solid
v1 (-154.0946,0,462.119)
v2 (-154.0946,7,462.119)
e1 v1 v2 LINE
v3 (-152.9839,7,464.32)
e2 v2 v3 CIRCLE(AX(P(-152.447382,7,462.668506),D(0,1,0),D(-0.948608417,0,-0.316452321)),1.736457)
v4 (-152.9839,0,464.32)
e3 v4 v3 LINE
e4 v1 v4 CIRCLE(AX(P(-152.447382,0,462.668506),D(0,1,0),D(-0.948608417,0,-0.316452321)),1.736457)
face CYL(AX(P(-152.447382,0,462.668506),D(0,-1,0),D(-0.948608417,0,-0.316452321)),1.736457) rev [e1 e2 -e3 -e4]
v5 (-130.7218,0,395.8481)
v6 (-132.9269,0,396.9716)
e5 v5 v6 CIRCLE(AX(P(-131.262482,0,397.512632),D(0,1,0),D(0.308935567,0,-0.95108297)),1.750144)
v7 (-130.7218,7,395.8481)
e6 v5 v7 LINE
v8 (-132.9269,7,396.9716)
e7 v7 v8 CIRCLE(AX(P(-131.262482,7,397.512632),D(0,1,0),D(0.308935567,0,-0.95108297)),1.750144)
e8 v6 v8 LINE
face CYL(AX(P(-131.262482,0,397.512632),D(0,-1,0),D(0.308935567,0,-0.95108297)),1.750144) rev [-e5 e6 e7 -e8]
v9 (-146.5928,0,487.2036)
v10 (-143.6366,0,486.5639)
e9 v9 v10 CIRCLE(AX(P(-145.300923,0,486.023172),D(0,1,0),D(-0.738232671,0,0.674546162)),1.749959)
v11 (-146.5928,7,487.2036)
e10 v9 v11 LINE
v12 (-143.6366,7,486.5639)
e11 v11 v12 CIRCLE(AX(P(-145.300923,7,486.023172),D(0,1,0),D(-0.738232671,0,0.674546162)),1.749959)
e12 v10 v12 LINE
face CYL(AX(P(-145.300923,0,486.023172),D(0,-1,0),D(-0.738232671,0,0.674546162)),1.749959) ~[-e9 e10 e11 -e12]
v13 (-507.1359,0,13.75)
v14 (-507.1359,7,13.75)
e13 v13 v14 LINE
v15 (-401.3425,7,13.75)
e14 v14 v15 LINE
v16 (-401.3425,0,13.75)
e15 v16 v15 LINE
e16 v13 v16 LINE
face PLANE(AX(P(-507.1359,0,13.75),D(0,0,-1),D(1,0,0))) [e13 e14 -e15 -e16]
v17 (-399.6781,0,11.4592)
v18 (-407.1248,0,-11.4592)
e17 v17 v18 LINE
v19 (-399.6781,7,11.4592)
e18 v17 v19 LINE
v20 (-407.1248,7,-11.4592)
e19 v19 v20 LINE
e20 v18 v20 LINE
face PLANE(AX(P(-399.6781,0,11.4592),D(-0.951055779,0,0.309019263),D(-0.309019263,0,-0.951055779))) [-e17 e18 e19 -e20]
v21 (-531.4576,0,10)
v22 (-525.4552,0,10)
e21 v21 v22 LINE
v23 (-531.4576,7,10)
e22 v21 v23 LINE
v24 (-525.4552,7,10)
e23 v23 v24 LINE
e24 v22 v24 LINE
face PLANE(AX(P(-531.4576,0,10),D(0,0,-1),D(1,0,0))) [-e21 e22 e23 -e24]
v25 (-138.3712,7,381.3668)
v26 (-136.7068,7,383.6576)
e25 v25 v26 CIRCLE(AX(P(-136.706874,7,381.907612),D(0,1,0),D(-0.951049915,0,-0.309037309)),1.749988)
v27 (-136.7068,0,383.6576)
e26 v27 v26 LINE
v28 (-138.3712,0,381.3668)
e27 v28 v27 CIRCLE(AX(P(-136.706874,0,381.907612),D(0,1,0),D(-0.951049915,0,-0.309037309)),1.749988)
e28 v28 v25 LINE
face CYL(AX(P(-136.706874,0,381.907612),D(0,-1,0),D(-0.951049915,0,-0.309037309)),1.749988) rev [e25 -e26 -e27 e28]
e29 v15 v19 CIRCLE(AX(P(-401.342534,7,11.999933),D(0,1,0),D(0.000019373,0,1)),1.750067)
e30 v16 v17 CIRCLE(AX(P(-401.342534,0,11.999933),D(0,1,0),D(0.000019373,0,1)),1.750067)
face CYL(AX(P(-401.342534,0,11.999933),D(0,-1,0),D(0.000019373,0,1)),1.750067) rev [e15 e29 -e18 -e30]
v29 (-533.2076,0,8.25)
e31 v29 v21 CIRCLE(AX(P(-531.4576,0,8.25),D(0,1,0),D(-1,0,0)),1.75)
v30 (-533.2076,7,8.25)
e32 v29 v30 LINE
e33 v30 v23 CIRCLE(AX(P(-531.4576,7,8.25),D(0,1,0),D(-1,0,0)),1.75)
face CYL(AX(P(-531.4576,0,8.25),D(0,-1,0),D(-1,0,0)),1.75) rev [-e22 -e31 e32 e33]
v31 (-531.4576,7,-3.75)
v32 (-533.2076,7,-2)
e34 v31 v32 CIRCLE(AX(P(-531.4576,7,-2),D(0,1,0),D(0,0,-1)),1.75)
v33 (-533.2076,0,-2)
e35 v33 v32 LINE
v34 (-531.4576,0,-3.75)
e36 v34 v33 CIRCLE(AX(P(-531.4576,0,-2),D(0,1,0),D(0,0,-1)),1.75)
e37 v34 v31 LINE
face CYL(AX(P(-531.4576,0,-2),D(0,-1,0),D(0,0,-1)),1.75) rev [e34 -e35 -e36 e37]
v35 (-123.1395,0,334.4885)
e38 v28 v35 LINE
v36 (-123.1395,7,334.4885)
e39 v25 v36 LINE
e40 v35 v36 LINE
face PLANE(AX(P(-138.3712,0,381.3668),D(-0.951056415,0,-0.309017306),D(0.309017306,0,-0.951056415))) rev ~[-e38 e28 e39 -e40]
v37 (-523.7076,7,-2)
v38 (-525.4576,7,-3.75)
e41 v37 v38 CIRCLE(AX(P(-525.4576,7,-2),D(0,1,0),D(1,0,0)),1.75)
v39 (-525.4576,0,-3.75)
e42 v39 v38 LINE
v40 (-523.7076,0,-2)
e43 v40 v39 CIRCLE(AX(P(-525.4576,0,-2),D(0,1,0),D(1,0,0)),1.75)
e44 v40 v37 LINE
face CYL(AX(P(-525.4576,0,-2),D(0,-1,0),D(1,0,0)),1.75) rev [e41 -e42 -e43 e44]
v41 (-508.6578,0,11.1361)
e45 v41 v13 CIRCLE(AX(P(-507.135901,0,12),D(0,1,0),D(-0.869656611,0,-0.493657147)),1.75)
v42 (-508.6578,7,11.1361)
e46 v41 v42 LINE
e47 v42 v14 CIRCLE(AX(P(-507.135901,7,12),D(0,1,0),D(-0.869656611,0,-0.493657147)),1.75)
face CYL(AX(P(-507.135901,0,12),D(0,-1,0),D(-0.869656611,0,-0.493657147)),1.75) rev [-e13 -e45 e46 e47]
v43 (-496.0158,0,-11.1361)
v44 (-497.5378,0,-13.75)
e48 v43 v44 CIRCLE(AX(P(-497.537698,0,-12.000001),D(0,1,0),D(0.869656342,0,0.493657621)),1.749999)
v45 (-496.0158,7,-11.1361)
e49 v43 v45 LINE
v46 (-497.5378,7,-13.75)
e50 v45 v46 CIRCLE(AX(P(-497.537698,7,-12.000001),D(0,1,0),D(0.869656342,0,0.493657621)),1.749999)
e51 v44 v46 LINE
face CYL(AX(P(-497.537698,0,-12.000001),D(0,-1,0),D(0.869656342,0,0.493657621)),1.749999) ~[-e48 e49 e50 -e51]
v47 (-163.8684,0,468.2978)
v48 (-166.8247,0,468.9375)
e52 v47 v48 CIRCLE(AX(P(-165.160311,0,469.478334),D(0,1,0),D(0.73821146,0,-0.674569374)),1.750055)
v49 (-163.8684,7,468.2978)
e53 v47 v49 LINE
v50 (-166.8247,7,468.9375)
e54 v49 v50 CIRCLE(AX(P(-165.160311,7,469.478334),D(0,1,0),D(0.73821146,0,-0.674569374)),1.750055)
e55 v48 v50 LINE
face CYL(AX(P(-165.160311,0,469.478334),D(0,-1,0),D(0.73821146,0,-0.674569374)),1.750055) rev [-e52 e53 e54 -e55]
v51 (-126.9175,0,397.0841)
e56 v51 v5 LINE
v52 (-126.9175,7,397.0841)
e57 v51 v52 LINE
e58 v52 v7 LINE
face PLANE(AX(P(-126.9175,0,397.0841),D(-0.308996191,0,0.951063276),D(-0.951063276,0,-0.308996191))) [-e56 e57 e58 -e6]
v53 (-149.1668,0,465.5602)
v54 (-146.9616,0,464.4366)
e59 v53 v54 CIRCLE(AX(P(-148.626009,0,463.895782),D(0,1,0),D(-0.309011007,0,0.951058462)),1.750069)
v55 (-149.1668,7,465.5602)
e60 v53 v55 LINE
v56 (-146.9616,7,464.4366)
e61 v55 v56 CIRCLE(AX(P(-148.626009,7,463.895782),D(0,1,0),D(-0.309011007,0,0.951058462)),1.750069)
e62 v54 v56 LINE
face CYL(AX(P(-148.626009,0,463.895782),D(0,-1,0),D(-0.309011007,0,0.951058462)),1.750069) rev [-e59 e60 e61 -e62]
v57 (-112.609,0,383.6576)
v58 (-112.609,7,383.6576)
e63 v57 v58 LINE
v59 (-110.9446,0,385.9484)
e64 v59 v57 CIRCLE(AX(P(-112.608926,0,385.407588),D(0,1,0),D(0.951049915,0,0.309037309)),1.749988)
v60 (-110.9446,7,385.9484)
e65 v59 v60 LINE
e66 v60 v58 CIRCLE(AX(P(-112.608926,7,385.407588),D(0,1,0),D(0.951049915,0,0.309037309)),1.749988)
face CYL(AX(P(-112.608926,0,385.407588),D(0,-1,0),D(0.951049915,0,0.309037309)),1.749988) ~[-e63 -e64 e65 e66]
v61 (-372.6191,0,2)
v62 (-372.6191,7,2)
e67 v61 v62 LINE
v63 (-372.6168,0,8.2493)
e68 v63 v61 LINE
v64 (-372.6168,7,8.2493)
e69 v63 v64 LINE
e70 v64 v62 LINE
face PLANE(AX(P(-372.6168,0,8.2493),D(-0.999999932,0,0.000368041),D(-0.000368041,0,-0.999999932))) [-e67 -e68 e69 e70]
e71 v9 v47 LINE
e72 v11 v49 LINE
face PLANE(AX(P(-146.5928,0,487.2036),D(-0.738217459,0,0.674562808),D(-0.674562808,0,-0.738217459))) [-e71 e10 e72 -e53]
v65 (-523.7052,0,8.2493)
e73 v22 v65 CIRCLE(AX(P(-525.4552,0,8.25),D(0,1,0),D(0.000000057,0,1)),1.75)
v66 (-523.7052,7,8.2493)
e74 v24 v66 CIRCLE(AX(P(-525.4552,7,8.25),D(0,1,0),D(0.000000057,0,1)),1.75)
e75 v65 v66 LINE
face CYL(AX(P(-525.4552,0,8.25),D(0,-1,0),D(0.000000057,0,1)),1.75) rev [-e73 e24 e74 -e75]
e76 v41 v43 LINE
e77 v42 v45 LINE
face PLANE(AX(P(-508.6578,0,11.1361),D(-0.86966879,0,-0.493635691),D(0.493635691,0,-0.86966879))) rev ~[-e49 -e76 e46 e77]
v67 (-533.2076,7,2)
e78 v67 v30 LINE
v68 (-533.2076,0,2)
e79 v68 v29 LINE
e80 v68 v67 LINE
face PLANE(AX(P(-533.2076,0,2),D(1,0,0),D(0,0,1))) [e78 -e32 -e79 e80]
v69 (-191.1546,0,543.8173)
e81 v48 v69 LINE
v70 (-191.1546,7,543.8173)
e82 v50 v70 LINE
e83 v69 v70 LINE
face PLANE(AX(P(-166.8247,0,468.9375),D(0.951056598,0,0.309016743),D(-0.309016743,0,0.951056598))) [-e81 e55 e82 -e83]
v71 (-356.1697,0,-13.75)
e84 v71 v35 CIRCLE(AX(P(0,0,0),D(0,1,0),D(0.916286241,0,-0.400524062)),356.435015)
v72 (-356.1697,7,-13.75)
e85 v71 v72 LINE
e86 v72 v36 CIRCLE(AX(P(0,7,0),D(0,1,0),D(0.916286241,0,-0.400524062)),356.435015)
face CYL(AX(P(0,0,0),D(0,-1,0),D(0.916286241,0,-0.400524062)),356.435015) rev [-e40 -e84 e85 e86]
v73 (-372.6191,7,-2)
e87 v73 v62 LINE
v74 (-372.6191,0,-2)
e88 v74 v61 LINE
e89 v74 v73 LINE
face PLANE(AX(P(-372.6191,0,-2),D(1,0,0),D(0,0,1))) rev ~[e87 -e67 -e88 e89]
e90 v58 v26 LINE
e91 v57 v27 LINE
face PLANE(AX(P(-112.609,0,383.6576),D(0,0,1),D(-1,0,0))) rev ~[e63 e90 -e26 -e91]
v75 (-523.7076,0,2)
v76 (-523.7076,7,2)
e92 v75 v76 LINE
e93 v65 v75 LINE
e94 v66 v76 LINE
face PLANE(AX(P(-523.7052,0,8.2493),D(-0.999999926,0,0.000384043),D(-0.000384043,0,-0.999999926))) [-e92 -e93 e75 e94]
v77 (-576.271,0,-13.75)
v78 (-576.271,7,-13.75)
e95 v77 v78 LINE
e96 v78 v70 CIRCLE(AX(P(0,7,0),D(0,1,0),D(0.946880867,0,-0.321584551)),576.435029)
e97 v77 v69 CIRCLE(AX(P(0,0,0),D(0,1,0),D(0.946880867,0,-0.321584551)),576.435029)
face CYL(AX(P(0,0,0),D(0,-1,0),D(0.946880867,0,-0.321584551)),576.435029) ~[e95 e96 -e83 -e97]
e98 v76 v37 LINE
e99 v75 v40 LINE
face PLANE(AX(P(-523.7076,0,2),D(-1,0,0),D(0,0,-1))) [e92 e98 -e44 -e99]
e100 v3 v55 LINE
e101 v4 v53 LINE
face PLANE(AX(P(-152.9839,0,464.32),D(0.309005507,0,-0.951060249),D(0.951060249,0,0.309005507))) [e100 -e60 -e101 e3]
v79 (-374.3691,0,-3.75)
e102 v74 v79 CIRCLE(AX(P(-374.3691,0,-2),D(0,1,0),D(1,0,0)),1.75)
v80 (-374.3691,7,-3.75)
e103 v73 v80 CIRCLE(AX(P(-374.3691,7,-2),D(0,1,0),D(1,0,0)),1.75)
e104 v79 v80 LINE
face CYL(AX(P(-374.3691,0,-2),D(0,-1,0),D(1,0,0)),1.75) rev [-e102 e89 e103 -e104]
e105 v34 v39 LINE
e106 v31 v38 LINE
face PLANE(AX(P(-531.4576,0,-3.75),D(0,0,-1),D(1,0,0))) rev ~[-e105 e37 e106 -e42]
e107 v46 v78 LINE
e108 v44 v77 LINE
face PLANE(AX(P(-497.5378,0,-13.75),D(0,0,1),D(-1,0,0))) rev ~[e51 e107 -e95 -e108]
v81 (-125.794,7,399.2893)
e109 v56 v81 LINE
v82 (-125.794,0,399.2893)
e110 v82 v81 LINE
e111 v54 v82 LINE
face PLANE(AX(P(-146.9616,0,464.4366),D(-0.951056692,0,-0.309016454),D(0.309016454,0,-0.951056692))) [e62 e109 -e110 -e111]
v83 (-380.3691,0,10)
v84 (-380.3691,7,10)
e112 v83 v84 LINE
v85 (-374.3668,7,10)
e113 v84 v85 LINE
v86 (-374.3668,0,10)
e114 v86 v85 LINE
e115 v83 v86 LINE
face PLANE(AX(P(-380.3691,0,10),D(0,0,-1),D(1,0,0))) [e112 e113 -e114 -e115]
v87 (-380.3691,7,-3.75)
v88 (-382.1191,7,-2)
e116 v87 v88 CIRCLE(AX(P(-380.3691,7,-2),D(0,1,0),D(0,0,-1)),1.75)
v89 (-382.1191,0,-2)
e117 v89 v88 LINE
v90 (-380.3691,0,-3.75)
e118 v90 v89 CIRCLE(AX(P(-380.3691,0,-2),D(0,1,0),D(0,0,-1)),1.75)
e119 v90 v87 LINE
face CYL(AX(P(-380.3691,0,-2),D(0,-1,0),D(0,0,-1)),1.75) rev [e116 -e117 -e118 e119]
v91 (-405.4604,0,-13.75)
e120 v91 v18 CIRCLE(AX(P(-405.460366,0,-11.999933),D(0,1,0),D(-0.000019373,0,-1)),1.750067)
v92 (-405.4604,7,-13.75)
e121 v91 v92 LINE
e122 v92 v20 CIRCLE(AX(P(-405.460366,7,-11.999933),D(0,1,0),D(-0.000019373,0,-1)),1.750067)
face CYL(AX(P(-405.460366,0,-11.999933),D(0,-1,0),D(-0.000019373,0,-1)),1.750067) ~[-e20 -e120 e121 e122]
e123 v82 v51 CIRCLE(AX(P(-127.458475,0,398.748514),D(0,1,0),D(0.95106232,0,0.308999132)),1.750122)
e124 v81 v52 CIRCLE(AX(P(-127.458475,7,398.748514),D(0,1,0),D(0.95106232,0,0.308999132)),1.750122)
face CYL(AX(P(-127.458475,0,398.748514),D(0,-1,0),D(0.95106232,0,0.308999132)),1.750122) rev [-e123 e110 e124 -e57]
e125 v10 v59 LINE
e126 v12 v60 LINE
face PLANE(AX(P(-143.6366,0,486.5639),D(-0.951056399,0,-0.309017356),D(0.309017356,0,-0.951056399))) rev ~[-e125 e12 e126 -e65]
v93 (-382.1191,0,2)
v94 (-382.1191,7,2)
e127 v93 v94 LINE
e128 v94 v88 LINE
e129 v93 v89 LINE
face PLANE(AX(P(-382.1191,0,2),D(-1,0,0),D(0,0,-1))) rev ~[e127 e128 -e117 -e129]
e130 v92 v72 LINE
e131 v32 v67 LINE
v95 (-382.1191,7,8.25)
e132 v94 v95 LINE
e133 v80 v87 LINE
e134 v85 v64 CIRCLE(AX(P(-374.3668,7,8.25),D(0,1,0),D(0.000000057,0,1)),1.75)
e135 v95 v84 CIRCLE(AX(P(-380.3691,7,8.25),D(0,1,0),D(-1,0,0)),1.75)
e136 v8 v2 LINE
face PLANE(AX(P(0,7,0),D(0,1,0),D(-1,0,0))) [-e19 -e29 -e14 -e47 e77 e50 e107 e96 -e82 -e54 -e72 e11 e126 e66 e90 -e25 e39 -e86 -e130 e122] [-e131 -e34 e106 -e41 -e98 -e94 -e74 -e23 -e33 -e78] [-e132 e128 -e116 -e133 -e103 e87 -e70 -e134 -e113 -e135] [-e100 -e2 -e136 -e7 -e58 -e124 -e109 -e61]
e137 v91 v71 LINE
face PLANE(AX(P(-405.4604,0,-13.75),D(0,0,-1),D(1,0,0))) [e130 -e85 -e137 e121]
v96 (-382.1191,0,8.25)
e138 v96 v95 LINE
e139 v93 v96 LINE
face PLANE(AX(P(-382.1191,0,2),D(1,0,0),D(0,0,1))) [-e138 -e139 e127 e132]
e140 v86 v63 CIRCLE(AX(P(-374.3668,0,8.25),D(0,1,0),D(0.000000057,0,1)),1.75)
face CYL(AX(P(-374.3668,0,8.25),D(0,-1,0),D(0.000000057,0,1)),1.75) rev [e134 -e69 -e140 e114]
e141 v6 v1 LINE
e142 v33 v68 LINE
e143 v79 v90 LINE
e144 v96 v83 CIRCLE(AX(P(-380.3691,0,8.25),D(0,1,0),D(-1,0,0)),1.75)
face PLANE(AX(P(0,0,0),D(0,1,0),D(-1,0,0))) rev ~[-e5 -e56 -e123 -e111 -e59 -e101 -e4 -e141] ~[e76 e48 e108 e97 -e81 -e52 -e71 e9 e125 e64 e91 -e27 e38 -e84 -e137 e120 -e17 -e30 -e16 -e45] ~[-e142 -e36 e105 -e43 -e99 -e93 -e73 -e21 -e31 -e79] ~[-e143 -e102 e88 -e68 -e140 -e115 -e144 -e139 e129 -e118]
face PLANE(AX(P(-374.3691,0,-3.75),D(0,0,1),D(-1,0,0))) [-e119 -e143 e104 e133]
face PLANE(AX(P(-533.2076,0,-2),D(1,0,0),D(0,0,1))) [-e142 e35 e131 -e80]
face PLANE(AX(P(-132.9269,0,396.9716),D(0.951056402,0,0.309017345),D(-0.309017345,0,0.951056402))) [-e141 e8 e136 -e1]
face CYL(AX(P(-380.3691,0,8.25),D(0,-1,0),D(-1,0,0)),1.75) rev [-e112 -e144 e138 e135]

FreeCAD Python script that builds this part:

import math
import FreeCAD as App
import Part
import Sketcher

V = App.Vector
Q = App.Units.Quantity

doc = App.newDocument("Part")
body = doc.addObject("PartDesign::Body", "Body")

# Sketch on XZ plane
sketch1 = doc.addObject("Sketcher::SketchObject", "Sketch")
body.addObject(sketch1)
sketch1.AttachmentSupport = (doc.XZ_Plane, [""])
sketch1.MapMode = "FlatFace"
sketch1.addGeometry([
    Part.ArcOfCircle(Part.Circle(V(0, 0, 0), V(0, 0, 1), 576.435029), math.radians(109.366839), math.radians(181.366835)),  # 0
    Part.LineSegment(V(-191.1546, 543.8173, 0), V(-166.8247, 468.9375, 0)),  # 1
    Part.ArcOfCircle(Part.Circle(V(-165.1603, 469.4783, 0), V(0, 0, 1), 1.750025), math.radians(-161.999886), math.radians(-42.420144)),  # 2
    Part.LineSegment(V(-163.8684, 468.2978, 0), V(-146.5928, 487.2036, 0)),  # 3
    Part.ArcOfCircle(Part.Circle(V(-145.3009, 486.0231, 0), V(0, 0, 1), 1.750025), math.radians(18.001126), math.radians(137.579856)),  # 4
    Part.LineSegment(V(-143.6366, 486.5639, 0), V(-110.9446, 385.9484, 0)),  # 5
    Part.ArcOfCircle(Part.Circle(V(-112.609, 385.4076, 0), V(0, 0, 1), 1.750055), math.radians(-90), math.radians(18.000114)),  # 6
    Part.LineSegment(V(-112.609, 383.6576, 0), V(-136.7068, 383.6576, 0)),  # 7
    Part.ArcOfCircle(Part.Circle(V(-136.7068, 381.9076, 0), V(0, 0, 1), 1.750055), math.radians(90), math.radians(198.000114)),  # 8
    Part.LineSegment(V(-138.3712, 381.3668, 0), V(-123.1395, 334.4885, 0)),  # 9
    Part.ArcOfCircle(Part.Circle(V(0, 0, 0), V(0, 0, 1), 356.435015), math.radians(110.210816), math.radians(182.210817)),  # 10
    Part.LineSegment(V(-356.1697, -13.75, 0), V(-405.4604, -13.75, 0)),  # 11
    Part.ArcOfCircle(Part.Circle(V(-405.4604, -12, 0), V(0, 0, 1), 1.75), math.radians(161.999886), math.radians(270)),  # 12
    Part.LineSegment(V(-407.1248, -11.4592, 0), V(-399.6781, 11.4592, 0)),  # 13
    Part.ArcOfCircle(Part.Circle(V(-401.3425, 12, 0), V(0, 0, 1), 1.75), math.radians(-18.000114), math.radians(90)),  # 14
    Part.LineSegment(V(-401.3425, 13.75, 0), V(-507.1359, 13.75, 0)),  # 15
    Part.ArcOfCircle(Part.Circle(V(-507.1359, 12, 0), V(0, 0, 1), 1.750001), math.radians(90), math.radians(209.581225)),  # 16
    Part.LineSegment(V(-508.6578, 11.1361, 0), V(-496.0158, -11.1361, 0)),  # 17
    Part.ArcOfCircle(Part.Circle(V(-497.5378, -12, 0), V(0, 0, 1), 1.750088), math.radians(-90), math.radians(29.579609)),  # 18
    Part.LineSegment(V(-497.5378, -13.75, 0), V(-576.271, -13.75, 0)),  # 19
    Part.LineSegment(V(-372.6191, -2, 0), V(-372.6191, 2, 0)),  # 20
    Part.LineSegment(V(-372.6191, 2, 0), V(-372.6168, 8.2493, 0)),  # 21
    Part.ArcOfCircle(Part.Circle(V(-374.3668, 8.25, 0), V(0, 0, 1), 1.75), math.radians(-0.022918), math.radians(90)),  # 22
    Part.LineSegment(V(-374.3668, 10, 0), V(-380.3691, 10, 0)),  # 23
    Part.ArcOfCircle(Part.Circle(V(-380.3691, 8.25, 0), V(0, 0, 1), 1.75), math.radians(90), math.radians(180)),  # 24
    Part.LineSegment(V(-382.1191, 8.25, 0), V(-382.1191, -2, 0)),  # 25
    Part.ArcOfCircle(Part.Circle(V(-380.3691, -2, 0), V(0, 0, 1), 1.75), math.radians(180), math.radians(270)),  # 26
    Part.LineSegment(V(-380.3691, -3.75, 0), V(-374.3691, -3.75, 0)),  # 27
    Part.ArcOfCircle(Part.Circle(V(-374.3691, -2, 0), V(0, 0, 1), 1.75), math.radians(-90), math.radians(0)),  # 28
    Part.LineSegment(V(-523.7076, -2, 0), V(-523.7076, 2, 0)),  # 29
    Part.LineSegment(V(-523.7076, 2, 0), V(-523.7052, 8.2493, 0)),  # 30
    Part.ArcOfCircle(Part.Circle(V(-525.4552, 8.25, 0), V(0, 0, 1), 1.75), math.radians(-0.022918), math.radians(90)),  # 31
    Part.LineSegment(V(-525.4552, 10, 0), V(-531.4576, 10, 0)),  # 32
    Part.ArcOfCircle(Part.Circle(V(-531.4576, 8.25, 0), V(0, 0, 1), 1.75), math.radians(90), math.radians(180)),  # 33
    Part.LineSegment(V(-533.2076, 8.25, 0), V(-533.2076, -2, 0)),  # 34
    Part.ArcOfCircle(Part.Circle(V(-531.4576, -2, 0), V(0, 0, 1), 1.75), math.radians(180), math.radians(270)),  # 35
    Part.LineSegment(V(-531.4576, -3.75, 0), V(-525.4576, -3.75, 0)),  # 36
    Part.ArcOfCircle(Part.Circle(V(-525.4576, -2, 0), V(0, 0, 1), 1.75), math.radians(-90), math.radians(0)),  # 37
    Part.LineSegment(V(-149.1668, 465.5602, 0), V(-152.9839, 464.32, 0)),  # 38
    Part.ArcOfCircle(Part.Circle(V(-152.4473, 462.6685, 0), V(0, 0, 1), 1.736533), math.radians(107.999847), math.radians(198.447469)),  # 39
    Part.LineSegment(V(-154.0946, 462.119, 0), V(-132.9269, 396.9716, 0)),  # 40
    Part.ArcOfCircle(Part.Circle(V(-131.2625, 397.5124, 0), V(0, 0, 1), 1.749929), math.radians(-161.999886), math.radians(-72.001988)),  # 41
    Part.LineSegment(V(-130.7218, 395.8481, 0), V(-126.9175, 397.0841, 0)),  # 42
    Part.ArcOfCircle(Part.Circle(V(-127.4583, 398.7485, 0), V(0, 0, 1), 1.74996), math.radians(-71.999886), math.radians(18.001126)),  # 43
    Part.LineSegment(V(-125.794, 399.2893, 0), V(-146.9616, 464.4366, 0)),  # 44
    Part.ArcOfCircle(Part.Circle(V(-148.626, 463.8959, 0), V(0, 0, 1), 1.74996), math.radians(17.997), math.radians(108.001126)),  # 45
], False)
sketch1.addConstraint([
    Sketcher.Constraint("Coincident", 0, 1, 1, 1),
    Sketcher.Constraint("Tangent", 1, 2, 2, 1),
    Sketcher.Constraint("Tangent", 2, 2, 3, 1),
    Sketcher.Constraint("Tangent", 3, 2, 4, 2),
    Sketcher.Constraint("Tangent", 4, 1, 5, 1),
    Sketcher.Constraint("Tangent", 5, 2, 6, 2),
    Sketcher.Constraint("Tangent", 6, 1, 7, 1),
    Sketcher.Constraint("Tangent", 7, 2, 8, 1),
    Sketcher.Constraint("Tangent", 8, 2, 9, 1),
    Sketcher.Constraint("Coincident", 9, 2, 10, 1),
    Sketcher.Constraint("Coincident", 10, 2, 11, 1),
    Sketcher.Constraint("Tangent", 11, 2, 12, 2),
    Sketcher.Constraint("Tangent", 12, 1, 13, 1),
    Sketcher.Constraint("Tangent", 13, 2, 14, 1),
    Sketcher.Constraint("Tangent", 14, 2, 15, 1),
    Sketcher.Constraint("Tangent", 15, 2, 16, 1),
    Sketcher.Constraint("Tangent", 16, 2, 17, 1),
    Sketcher.Constraint("Tangent", 17, 2, 18, 2),
    Sketcher.Constraint("Tangent", 18, 1, 19, 1),
    Sketcher.Constraint("Coincident", 19, 2, 0, 2),
    Sketcher.Constraint("Coincident", 20, 2, 21, 1),
    Sketcher.Constraint("Tangent", 21, 2, 22, 1),
    Sketcher.Constraint("Tangent", 22, 2, 23, 1),
    Sketcher.Constraint("Tangent", 23, 2, 24, 1),
    Sketcher.Constraint("Tangent", 24, 2, 25, 1),
    Sketcher.Constraint("Tangent", 25, 2, 26, 1),
    Sketcher.Constraint("Tangent", 26, 2, 27, 1),
    Sketcher.Constraint("Tangent", 27, 2, 28, 1),
    Sketcher.Constraint("Tangent", 28, 2, 20, 1),
    Sketcher.Constraint("Coincident", 29, 2, 30, 1),
    Sketcher.Constraint("Tangent", 30, 2, 31, 1),
    Sketcher.Constraint("Tangent", 31, 2, 32, 1),
    Sketcher.Constraint("Tangent", 32, 2, 33, 1),
    Sketcher.Constraint("Tangent", 33, 2, 34, 1),
    Sketcher.Constraint("Tangent", 34, 2, 35, 1),
    Sketcher.Constraint("Tangent", 35, 2, 36, 1),
    Sketcher.Constraint("Tangent", 36, 2, 37, 1),
    Sketcher.Constraint("Tangent", 37, 2, 29, 1),
    Sketcher.Constraint("Tangent", 38, 2, 39, 1),
    Sketcher.Constraint("Coincident", 39, 2, 40, 1),
    Sketcher.Constraint("Tangent", 40, 2, 41, 1),
    Sketcher.Constraint("Tangent", 41, 2, 42, 1),
    Sketcher.Constraint("Tangent", 42, 2, 43, 1),
    Sketcher.Constraint("Tangent", 43, 2, 44, 1),
    Sketcher.Constraint("Tangent", 44, 2, 45, 1),
    Sketcher.Constraint("Tangent", 45, 2, 38, 1),
    Sketcher.Constraint("Horizontal", 7),
    Sketcher.Constraint("Horizontal", 11),
    Sketcher.Constraint("Horizontal", 15),
    Sketcher.Constraint("Horizontal", 19),
    Sketcher.Constraint("Vertical", 20),
    Sketcher.Constraint("Horizontal", 23),
    Sketcher.Constraint("Vertical", 25),
    Sketcher.Constraint("Horizontal", 27),
    Sketcher.Constraint("Vertical", 29),
    Sketcher.Constraint("Horizontal", 32),
    Sketcher.Constraint("Vertical", 34),
    Sketcher.Constraint("Horizontal", 36),
    Sketcher.Constraint("Coincident", 0, 3, -1, 1),
    Sketcher.Constraint("Coincident", 10, 3, -1, 1),
    Sketcher.Constraint("Equal", 2, 4),
    Sketcher.Constraint("Equal", 4, 6),
    Sketcher.Constraint("Equal", 6, 8),
    Sketcher.Constraint("Equal", 8, 12),
    Sketcher.Constraint("Equal", 12, 14),
    Sketcher.Constraint("Equal", 14, 16),
    Sketcher.Constraint("Equal", 16, 18),
    Sketcher.Constraint("Equal", 18, 22),
    Sketcher.Constraint("Equal", 22, 24),
    Sketcher.Constraint("Equal", 24, 26),
    Sketcher.Constraint("Equal", 26, 28),
    Sketcher.Constraint("Equal", 28, 31),
    Sketcher.Constraint("Equal", 31, 33),
    Sketcher.Constraint("Equal", 33, 35),
    Sketcher.Constraint("Equal", 35, 37),
    Sketcher.Constraint("Equal", 37, 41),
    Sketcher.Constraint("Equal", 41, 43),
    Sketcher.Constraint("Equal", 43, 45),
    Sketcher.Constraint("Parallel", 1, 5),
    Sketcher.Constraint("Parallel", 5, 9),
    Sketcher.Constraint("Parallel", 21, 30),
    Sketcher.Constraint("Perpendicular", 9, 38),
    Sketcher.Constraint("Perpendicular", 38, 40),
    Sketcher.Constraint("Perpendicular", 40, 42),
    Sketcher.Constraint("Perpendicular", 42, 44),
    Sketcher.Constraint("Horizontal", 12, 3, 18, 3),
    Sketcher.Constraint("Horizontal", 24, 3, 31, 3),
    Sketcher.Constraint("Horizontal", 28, 3, 35, 3),
    Sketcher.Constraint("Horizontal", 20, 2, 29, 2),
    Sketcher.Constraint("Equal", 23, 32),
    Sketcher.Constraint("Equal", 3, 17),
    Sketcher.Constraint("Equal", 40, 44),
    Sketcher.Constraint("Radius", 2, 1.75),
    Sketcher.Constraint("Radius", 0, 576.435),
    Sketcher.Constraint("Radius", 10, 356.435),
    Sketcher.Constraint("DistanceX", 27, 1, 27, 2, 6.0),
    Sketcher.Constraint("DistanceY", 20, 1, 20, 2, 4.0),
    Sketcher.Constraint("Angle", 1, Q("-72 deg")),
    Sketcher.Constraint("Angle", 13, Q("71.9999 deg")),
    Sketcher.Constraint("Distance", 42, 4.0),
    Sketcher.Constraint("DistanceY", 12, 3, -1, 1, 12.0),
    Sketcher.Constraint("DistanceY", -1, 1, 14, 3, 12.0),
    Sketcher.Constraint("DistanceY", 26, 3, -1, 1, 2.0),
    Sketcher.Constraint("DistanceY", -1, 1, 22, 2, 10.0),
    Sketcher.Constraint("Distance", 40, 68.5),
    Sketcher.Constraint("Angle", 3, Q("47.5798 deg")),
    Sketcher.Constraint("Angle", 17, Q("-60.4202 deg")),
    Sketcher.Constraint("Angle", 21, Q("89.979 deg")),
    Sketcher.Constraint("Radius", 39, 1.7365),
    Sketcher.Constraint("DistanceY", -1, 1, 38, 2, 464.32),
    Sketcher.Constraint("DistanceX", 7, 2, 7, 1, 24.0978),
    Sketcher.Constraint("DistanceX", 11, 2, 11, 1, 49.2907),
    Sketcher.Constraint("DistanceX", 15, 2, 15, 1, 105.7934),
    Sketcher.Constraint("DistanceX", 4, 3, -1, 1, 145.301),
    Sketcher.Constraint("DistanceY", -1, 1, 4, 3, 486.023),
    Sketcher.Constraint("DistanceX", 6, 3, -1, 1, 112.609),
    Sketcher.Constraint("DistanceX", 24, 3, -1, 1, 380.369),
    Sketcher.Constraint("DistanceX", 45, 3, -1, 1, 148.626),
    Sketcher.Constraint("DistanceX", 31, 3, -1, 1, 525.4552),
])
pad1 = doc.addObject("PartDesign::Pad", "Pad")
body.addObject(pad1)
pad1.Profile = sketch1
pad1.Length = 7
pad1.Reversed = True

doc.recompute()
